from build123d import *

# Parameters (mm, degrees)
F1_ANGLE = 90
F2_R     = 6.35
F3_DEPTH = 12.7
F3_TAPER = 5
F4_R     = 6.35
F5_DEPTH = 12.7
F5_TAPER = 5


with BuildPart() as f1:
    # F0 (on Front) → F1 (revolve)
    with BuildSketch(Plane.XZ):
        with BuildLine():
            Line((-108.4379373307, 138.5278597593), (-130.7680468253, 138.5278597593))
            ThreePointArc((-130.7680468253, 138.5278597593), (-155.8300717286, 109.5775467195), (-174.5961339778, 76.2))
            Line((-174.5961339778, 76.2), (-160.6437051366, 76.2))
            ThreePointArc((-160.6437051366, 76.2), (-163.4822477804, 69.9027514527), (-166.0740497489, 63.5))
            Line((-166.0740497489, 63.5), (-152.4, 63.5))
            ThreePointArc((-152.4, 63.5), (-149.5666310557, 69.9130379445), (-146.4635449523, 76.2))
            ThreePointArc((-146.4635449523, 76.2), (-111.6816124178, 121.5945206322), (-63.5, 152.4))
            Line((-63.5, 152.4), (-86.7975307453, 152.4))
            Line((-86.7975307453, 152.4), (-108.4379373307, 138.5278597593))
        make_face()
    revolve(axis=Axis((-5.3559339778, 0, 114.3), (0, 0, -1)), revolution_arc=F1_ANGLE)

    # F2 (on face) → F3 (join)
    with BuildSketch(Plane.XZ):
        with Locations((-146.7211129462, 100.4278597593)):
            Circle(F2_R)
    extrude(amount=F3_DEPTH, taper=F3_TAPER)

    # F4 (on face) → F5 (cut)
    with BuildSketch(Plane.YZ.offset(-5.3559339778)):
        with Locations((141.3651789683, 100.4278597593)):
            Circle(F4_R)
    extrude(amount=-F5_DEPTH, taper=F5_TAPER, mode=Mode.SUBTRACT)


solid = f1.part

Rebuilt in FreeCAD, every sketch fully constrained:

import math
import FreeCAD as App
import Part
import Sketcher
from FreeCAD import Vector
Q = App.Units.Quantity

doc = App.newDocument("Part")
params = doc.addObject("Spreadsheet::Sheet", "Params")
for row, (alias, value) in enumerate([
    ("sketch1_radius", "7 in"),
    ("sketch1_radius2", "7.5 in"),
    ("sketch1_radius3", "6.5 in"),
    ("sketch1_height", "6 in"),
    ("revolution_angle", "90 deg"),
    ("sketch2_diameter", "0.5 in"),
    ("pad1_length", "0.5 in"),
    ("pad1_taper", "-5 deg"),
    ("sketch3_diameter", "0.5 in"),
    ("pocket1_length", "0.5 in"),
    ("pocket1_taper", "-5 deg"),
], start=1):
    params.set(f"A{row}", alias)
    params.set(f"B{row}", "=" + value)
    params.setAlias(f"B{row}", alias)

body = doc.addObject("PartDesign::Body", "Body")

sketch1 = doc.addObject("Sketcher::SketchObject", "Sketch")
body.addObject(sketch1)
sketch1.AttachmentSupport = (doc.XZ_Plane, [""])
sketch1.MapMode = "FlatFace"
sketch1.addGeometry([
    Part.LineSegment(Vector(-108.437937, 138.52786, 0), Vector(-130.768047, 138.52786, 0)),
    Part.ArcOfCircle(Part.Circle(Vector(0, 0, 0), Vector(0, 0, 1), 190.5), math.radians(133.349468), math.radians(156.421822)),
    Part.LineSegment(Vector(-174.596134, 76.2, 0), Vector(-160.643705, 76.2, 0)),
    Part.ArcOfCircle(Part.Circle(Vector(0, 0, 0), Vector(0, 0, 1), 177.8), math.radians(154.623066), math.radians(159.075168)),
    Part.LineSegment(Vector(-166.07405, 63.5, 0), Vector(-152.4, 63.5, 0)),
    Part.ArcOfCircle(Part.Circle(Vector(0, 0, 0), Vector(0, 0, 1), 165.1), math.radians(152.513574), math.radians(157.380135)),
    Part.ArcOfCircle(Part.Circle(Vector(0, 0, 0), Vector(0, 0, 1), 165.1), math.radians(112.619865), math.radians(152.513574)),
    Part.LineSegment(Vector(-63.5, 152.4, 0), Vector(-86.797531, 152.4, 0)),
    Part.LineSegment(Vector(-86.797531, 152.4, 0), Vector(-108.437937, 138.52786, 0)),
], False)
sketch1.addGeometry(Part.LineSegment(Vector(-5.355934, 152.4, 0), Vector(-5.355934, 0, 0)), True)
sketch1.addConstraint([
    Sketcher.Constraint("Coincident", 0, 2, 1, 1),
    Sketcher.Constraint("Coincident", 1, 2, 2, 1),
    Sketcher.Constraint("Coincident", 2, 2, 3, 1),
    Sketcher.Constraint("Coincident", 3, 2, 4, 1),
    Sketcher.Constraint("Coincident", 4, 2, 5, 2),
    Sketcher.Constraint("Tangent", 5, 1, 6, 2),
    Sketcher.Constraint("Coincident", 6, 1, 7, 1),
    Sketcher.Constraint("Coincident", 7, 2, 8, 1),
    Sketcher.Constraint("Coincident", 8, 2, 0, 1),
    Sketcher.Constraint("Horizontal", 0),
    Sketcher.Constraint("Horizontal", 2),
    Sketcher.Constraint("Horizontal", 4),
    Sketcher.Constraint("Horizontal", 7),
    Sketcher.Constraint("Vertical", 9),
    Sketcher.Constraint("Coincident", 1, 3, -1, 1),
    Sketcher.Constraint("Coincident", 3, 3, -1, 1),
    Sketcher.Constraint("Coincident", 5, 3, -1, 1),
    Sketcher.Constraint("Equal", 5, 6),
    Sketcher.Constraint("PointOnObject", 9, 2, -1),
    Sketcher.Constraint("Horizontal", 2, 2, 5, 1),
    Sketcher.Constraint("Horizontal", 7, 2, 9, 1),
    Sketcher.Constraint("Radius", 3, Q("7 in")),
    Sketcher.Constraint("Radius", 1, Q("7.5 in")),
    Sketcher.Constraint("Radius", 5, Q("6.5 in")),
    Sketcher.Constraint("DistanceY", 9, 2, 9, 1, Q("6 in")),
    Sketcher.Constraint("DistanceY", -1, 1, 1, 2, Q("3 in")),
    Sketcher.Constraint("DistanceX", 4, 2, -1, 1, Q("6 in")),
    Sketcher.Constraint("DistanceX", 3, 2, 0, 2, Q("1.3900001 in")),
    Sketcher.Constraint("DistanceX", 0, 2, 0, 1, 22.330109),
    Sketcher.Constraint("DistanceX", 7, 2, 7, 1, 23.297531),
    Sketcher.Constraint("DistanceX", 9, 1, -1, 1, 5.355934),
])
sketch1.setExpression("Constraints[21]", "Params.sketch1_radius")
sketch1.setExpression("Constraints[22]", "Params.sketch1_radius2")
sketch1.setExpression("Constraints[23]", "Params.sketch1_radius3")
sketch1.setExpression("Constraints[24]", "Params.sketch1_height")
revolution = doc.addObject("PartDesign::Revolution", "Revolution")
body.addObject(revolution)
revolution.Profile = sketch1
revolution.ReferenceAxis = (sketch1, ["Axis0"])
revolution.setExpression("Angle", "Params.revolution_angle")

sketch2 = doc.addObject("Sketcher::SketchObject", "Sketch001")
body.addObject(sketch2)
sketch2.AttachmentSupport = (doc.XZ_Plane, [""])
sketch2.MapMode = "FlatFace"
sketch2.addGeometry(Part.Circle(Vector(-146.721113, 100.42786, 0), Vector(0, 0, 1), 6.35), False)
sketch2.addConstraint([
    Sketcher.Constraint("Diameter", 0, Q("0.5 in")),
    Sketcher.Constraint("DistanceY", -1, 1, 0, 3, 100.42786),
    Sketcher.Constraint("DistanceX", 0, 3, -1, 1, 146.721113),
])
sketch2.setExpression("Constraints[0]", "Params.sketch2_diameter")
pad1 = doc.addObject("PartDesign::Pad", "Pad")
body.addObject(pad1)
pad1.Profile = sketch2
pad1.setExpression("Length", "Params.pad1_length")
pad1.setExpression("TaperAngle", "Params.pad1_taper")

sketch3 = doc.addObject("Sketcher::SketchObject", "Sketch002")
body.addObject(sketch3)
sketch3.AttachmentSupport = (doc.YZ_Plane, [""])
sketch3.MapMode = "FlatFace"
sketch3.AttachmentOffset = App.Placement(Vector(0, 0, -5.355934), App.Rotation())
sketch3.addGeometry(Part.Circle(Vector(141.365179, 100.42786, 0), Vector(0, 0, 1), 6.35), False)
sketch3.addConstraint([
    Sketcher.Constraint("Diameter", 0, Q("0.5 in")),
    Sketcher.Constraint("DistanceX", -1, 1, 0, 3, 141.365179),
    Sketcher.Constraint("DistanceY", -1, 1, 0, 3, 100.42786),
])
sketch3.setExpression("Constraints[0]", "Params.sketch3_diameter")
pocket1 = doc.addObject("PartDesign::Pocket", "Pocket")
body.addObject(pocket1)
pocket1.Profile = sketch3
pocket1.setExpression("Length", "Params.pocket1_length")
pocket1.setExpression("TaperAngle", "Params.pocket1_taper")

doc.recompute()
